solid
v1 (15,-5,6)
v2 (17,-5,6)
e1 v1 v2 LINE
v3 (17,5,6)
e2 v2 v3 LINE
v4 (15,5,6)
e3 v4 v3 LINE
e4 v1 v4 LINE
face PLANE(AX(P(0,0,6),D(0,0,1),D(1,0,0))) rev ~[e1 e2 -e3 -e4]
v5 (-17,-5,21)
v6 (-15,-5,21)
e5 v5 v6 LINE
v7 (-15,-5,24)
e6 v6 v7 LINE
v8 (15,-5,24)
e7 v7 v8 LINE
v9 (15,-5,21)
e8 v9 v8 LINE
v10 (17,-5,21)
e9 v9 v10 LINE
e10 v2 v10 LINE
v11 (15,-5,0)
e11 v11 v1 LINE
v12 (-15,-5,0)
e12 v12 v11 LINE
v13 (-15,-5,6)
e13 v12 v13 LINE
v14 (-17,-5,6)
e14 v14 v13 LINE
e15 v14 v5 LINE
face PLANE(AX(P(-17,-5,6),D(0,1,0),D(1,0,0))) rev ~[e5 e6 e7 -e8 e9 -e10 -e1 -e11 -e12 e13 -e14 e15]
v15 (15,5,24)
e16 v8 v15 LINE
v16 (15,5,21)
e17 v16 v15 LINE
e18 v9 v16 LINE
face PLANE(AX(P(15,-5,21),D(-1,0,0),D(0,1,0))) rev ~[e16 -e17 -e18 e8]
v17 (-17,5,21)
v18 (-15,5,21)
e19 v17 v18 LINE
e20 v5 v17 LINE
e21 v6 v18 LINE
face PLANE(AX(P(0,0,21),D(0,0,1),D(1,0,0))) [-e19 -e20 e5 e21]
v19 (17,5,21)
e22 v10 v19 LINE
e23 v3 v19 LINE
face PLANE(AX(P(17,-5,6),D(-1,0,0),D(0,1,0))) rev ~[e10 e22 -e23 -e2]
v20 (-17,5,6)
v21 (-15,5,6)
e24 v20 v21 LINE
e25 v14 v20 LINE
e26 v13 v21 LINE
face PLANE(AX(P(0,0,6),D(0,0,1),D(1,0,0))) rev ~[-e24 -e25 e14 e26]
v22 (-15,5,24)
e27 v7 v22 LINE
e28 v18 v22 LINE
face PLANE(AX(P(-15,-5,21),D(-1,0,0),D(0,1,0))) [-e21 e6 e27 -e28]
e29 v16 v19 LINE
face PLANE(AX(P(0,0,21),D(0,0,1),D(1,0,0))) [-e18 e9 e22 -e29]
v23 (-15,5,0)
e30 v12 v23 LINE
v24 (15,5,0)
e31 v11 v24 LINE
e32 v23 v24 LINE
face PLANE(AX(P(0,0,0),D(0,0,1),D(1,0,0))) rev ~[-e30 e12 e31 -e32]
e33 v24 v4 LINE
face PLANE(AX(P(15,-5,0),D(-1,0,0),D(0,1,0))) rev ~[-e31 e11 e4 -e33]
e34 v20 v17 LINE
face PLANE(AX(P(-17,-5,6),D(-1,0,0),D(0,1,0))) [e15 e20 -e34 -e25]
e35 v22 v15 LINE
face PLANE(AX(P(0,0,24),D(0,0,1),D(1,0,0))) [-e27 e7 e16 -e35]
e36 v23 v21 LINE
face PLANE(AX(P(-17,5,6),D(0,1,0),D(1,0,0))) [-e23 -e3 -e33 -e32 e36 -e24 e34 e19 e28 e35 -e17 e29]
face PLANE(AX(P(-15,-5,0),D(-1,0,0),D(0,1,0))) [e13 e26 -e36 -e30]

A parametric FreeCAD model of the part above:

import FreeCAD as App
import Part
import Sketcher
Q = App.Units.Quantity


def add_polygon(sketch, points):
    """Adds a closed chain of lines whose ends are joined by coincident constraints."""
    first, n = sketch.GeometryCount, len(points)
    for a, b in zip(points, points[1:] + points[:1]):
        sketch.addGeometry(Part.LineSegment(App.Vector(*a, 0), App.Vector(*b, 0)), False)
    for i in range(n):
        sketch.addConstraint(Sketcher.Constraint("Coincident", first + i, 2, first + (i + 1) % n, 1))

doc = App.newDocument("Part")
body = doc.addObject("PartDesign::Body", "Body")

sketch1 = body.newObject("Sketcher::SketchObject", "Sketch")
sketch1.AttachmentSupport = (doc.getObject("XY_Plane"), [""])
sketch1.MapMode = "FlatFace"
add_polygon(sketch1, [(-15, 5), (-15, -5), (15, -5), (15, 5)])
sketch1.addConstraint([
    Sketcher.Constraint("Vertical", 0),
    Sketcher.Constraint("Horizontal", 1),
    Sketcher.Constraint("Vertical", 2),
    Sketcher.Constraint("Horizontal", 3),
    Sketcher.Constraint("Symmetric", 0, 2, 2, 2, -1, 1),
    Sketcher.Constraint("DistanceX", 1, 1, 1, 2, Q("30 mm")),
    Sketcher.Constraint("DistanceY", 0, 2, 0, 1, Q("10 mm")),
])
pad1 = body.newObject("PartDesign::Pad", "Pad")
pad1.Profile = sketch1
pad1.Length = 6

sketch2 = body.newObject("Sketcher::SketchObject", "Sketch001")
sketch2.AttachmentSupport = (doc.getObject("XY_Plane"), [""])
sketch2.MapMode = "FlatFace"
sketch2.AttachmentOffset = App.Placement(App.Vector(0, 0, 6), App.Rotation())
add_polygon(sketch2, [(-17, 5), (-17, -5), (17, -5), (17, 5)])
sketch2.addConstraint([
    Sketcher.Constraint("Vertical", 0),
    Sketcher.Constraint("Horizontal", 1),
    Sketcher.Constraint("Vertical", 2),
    Sketcher.Constraint("Horizontal", 3),
    Sketcher.Constraint("Symmetric", 0, 2, 2, 2, -1, 1),
    Sketcher.Constraint("DistanceX", 1, 1, 1, 2, Q("34 mm")),
    Sketcher.Constraint("DistanceY", 0, 2, 0, 1, Q("10 mm")),
])
pad2 = body.newObject("PartDesign::Pad", "Pad001")
pad2.Profile = sketch2
pad2.Length = 15

sketch3 = body.newObject("Sketcher::SketchObject", "Sketch002")
sketch3.AttachmentSupport = (doc.getObject("XY_Plane"), [""])
sketch3.MapMode = "FlatFace"
sketch3.AttachmentOffset = App.Placement(App.Vector(0, 0, 21), App.Rotation())
add_polygon(sketch3, [(-15, 5), (-15, -5), (15, -5), (15, 5)])
sketch3.addConstraint([
    Sketcher.Constraint("Vertical", 0),
    Sketcher.Constraint("Horizontal", 1),
    Sketcher.Constraint("Vertical", 2),
    Sketcher.Constraint("Horizontal", 3),
    Sketcher.Constraint("Symmetric", 0, 2, 2, 2, -1, 1),
    Sketcher.Constraint("DistanceX", 1, 1, 1, 2, Q("30 mm")),
    Sketcher.Constraint("DistanceY", 0, 2, 0, 1, Q("10 mm")),
])
pad3 = body.newObject("PartDesign::Pad", "Pad002")
pad3.Profile = sketch3
pad3.Length = 3

doc.recompute()
